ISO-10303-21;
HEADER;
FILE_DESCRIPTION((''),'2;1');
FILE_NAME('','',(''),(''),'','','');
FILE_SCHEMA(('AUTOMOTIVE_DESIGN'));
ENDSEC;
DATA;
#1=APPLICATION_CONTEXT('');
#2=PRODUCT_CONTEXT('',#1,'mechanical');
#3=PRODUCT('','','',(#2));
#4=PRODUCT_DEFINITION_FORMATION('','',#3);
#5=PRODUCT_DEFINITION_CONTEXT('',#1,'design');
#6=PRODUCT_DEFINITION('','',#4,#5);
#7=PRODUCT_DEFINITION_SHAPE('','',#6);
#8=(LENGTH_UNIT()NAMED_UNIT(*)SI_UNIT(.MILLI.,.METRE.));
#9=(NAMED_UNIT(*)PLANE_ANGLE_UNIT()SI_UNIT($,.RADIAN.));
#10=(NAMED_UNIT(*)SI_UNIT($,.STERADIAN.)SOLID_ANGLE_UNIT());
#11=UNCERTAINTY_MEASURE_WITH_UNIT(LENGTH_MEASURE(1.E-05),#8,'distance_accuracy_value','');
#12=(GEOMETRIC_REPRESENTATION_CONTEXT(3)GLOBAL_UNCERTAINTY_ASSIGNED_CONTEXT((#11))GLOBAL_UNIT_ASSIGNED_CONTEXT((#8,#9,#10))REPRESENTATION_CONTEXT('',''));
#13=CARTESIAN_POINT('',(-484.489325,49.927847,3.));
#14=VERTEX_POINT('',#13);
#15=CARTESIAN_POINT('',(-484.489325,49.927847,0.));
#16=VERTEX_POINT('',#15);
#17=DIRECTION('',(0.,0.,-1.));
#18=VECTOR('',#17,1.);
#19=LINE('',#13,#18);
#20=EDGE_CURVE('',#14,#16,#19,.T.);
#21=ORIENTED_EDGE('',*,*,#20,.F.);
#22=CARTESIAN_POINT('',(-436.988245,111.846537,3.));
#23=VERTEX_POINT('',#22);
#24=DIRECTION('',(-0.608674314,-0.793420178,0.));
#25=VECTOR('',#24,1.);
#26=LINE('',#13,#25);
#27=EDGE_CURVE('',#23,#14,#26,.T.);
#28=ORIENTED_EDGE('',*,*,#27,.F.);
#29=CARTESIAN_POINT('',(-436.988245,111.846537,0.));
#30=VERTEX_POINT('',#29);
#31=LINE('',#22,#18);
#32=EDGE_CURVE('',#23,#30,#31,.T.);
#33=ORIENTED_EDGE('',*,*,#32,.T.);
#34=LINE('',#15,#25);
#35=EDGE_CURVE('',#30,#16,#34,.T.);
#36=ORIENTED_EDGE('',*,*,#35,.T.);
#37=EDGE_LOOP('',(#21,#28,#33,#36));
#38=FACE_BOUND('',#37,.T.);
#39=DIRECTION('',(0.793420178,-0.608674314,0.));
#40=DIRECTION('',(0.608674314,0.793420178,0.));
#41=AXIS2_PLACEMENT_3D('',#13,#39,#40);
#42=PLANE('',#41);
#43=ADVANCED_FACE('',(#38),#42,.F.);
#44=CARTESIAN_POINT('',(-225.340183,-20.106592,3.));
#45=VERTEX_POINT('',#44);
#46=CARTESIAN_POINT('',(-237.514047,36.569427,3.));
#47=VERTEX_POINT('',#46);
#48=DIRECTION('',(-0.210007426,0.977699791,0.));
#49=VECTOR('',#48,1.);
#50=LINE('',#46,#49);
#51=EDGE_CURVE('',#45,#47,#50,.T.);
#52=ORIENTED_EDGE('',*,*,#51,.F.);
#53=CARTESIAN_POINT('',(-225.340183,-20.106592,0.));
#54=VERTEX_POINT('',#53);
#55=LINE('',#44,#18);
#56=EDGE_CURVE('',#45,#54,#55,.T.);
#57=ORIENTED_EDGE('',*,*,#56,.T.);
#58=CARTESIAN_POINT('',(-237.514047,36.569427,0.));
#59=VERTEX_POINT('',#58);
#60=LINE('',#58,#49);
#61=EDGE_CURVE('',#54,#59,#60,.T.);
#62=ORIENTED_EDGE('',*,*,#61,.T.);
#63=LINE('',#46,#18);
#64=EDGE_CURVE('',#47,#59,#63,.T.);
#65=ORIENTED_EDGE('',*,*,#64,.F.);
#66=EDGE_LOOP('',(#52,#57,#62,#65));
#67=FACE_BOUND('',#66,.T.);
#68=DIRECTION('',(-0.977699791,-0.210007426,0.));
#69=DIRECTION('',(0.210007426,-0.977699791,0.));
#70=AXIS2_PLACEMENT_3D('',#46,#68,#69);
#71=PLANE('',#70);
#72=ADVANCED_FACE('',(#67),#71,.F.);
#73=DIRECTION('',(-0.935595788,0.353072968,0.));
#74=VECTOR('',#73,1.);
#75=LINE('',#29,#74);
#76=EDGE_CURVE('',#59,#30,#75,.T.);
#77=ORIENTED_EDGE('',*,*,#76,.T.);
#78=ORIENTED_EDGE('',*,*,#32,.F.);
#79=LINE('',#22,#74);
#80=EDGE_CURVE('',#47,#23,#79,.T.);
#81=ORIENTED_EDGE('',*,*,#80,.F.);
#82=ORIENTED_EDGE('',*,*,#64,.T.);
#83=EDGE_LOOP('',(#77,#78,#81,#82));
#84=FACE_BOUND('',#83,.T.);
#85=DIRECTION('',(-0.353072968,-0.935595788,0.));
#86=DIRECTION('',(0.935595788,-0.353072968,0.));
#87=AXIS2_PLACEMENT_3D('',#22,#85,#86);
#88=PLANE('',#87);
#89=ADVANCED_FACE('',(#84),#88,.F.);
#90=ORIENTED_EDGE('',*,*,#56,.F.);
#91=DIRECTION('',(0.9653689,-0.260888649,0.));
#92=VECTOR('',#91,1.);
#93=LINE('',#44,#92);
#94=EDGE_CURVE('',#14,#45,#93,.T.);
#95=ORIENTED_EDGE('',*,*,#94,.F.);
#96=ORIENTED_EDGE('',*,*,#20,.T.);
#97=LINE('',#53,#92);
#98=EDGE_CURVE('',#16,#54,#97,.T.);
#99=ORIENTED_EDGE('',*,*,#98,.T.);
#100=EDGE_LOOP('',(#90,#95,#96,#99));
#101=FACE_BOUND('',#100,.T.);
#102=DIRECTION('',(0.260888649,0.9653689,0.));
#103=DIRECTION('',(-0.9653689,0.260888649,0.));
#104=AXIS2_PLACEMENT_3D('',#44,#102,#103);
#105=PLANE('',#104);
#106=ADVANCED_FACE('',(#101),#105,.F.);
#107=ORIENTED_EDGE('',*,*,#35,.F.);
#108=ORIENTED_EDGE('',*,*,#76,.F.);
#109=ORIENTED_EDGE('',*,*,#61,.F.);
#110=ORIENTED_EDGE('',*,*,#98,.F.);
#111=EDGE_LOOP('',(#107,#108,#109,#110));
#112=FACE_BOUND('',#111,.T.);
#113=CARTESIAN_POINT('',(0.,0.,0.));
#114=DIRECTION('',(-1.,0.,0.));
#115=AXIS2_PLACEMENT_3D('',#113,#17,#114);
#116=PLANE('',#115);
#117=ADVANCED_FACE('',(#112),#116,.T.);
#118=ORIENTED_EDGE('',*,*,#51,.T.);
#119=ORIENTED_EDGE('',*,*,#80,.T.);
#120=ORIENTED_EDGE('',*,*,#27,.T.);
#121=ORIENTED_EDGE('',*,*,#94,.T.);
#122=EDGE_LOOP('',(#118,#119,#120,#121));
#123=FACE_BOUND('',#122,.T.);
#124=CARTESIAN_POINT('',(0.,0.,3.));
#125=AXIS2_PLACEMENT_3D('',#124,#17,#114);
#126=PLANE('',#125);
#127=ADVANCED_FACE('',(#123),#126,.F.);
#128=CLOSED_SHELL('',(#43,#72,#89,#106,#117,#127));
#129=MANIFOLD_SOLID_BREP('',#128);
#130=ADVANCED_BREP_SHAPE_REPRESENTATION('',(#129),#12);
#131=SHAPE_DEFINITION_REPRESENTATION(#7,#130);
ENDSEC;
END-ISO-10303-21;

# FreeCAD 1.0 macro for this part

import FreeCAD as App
import Part
import Sketcher

V = App.Vector
Q = App.Units.Quantity

doc = App.newDocument("Part")
body = doc.addObject("PartDesign::Body", "Body")

# Sketch on XY plane
sketch1 = body.newObject("Sketcher::SketchObject", "Sketch")
sketch1.AttachmentSupport = (doc.getObject("XY_Plane"), [""])
sketch1.MapMode = "FlatFace"
sketch1.addGeometry(Part.LineSegment(V(-436.988245, 111.846537, 0), V(-484.489325, 49.927847, 0)), False)
sketch1.addGeometry(Part.LineSegment(V(-484.489325, 49.927847, 0), V(-225.340183, -20.106592, 0)), False)
sketch1.addGeometry(Part.LineSegment(V(-225.340183, -20.106592, 0), V(-237.514047, 36.569427, 0)), False)
sketch1.addGeometry(Part.LineSegment(V(-237.514047, 36.569427, 0), V(-436.988245, 111.846537, 0)), False)
sketch1.addConstraint(Sketcher.Constraint("Coincident", 0, 2, 1, 1))
sketch1.addConstraint(Sketcher.Constraint("Coincident", 1, 2, 2, 1))
sketch1.addConstraint(Sketcher.Constraint("Coincident", 2, 2, 3, 1))
sketch1.addConstraint(Sketcher.Constraint("Coincident", 3, 2, 0, 1))
sketch1.addConstraint(Sketcher.Constraint("Distance", 3, Q("213.205531 mm")))
sketch1.addConstraint(Sketcher.Constraint("DistanceY", 1, 2, 0, 2, Q("70.034439 mm")))
sketch1.addConstraint(Sketcher.Constraint("DistanceY", 1, 2, 2, 2, Q("56.676019 mm")))
sketch1.addConstraint(Sketcher.Constraint("DistanceX", 0, 2, 3, 2, Q("47.501081 mm")))
sketch1.addConstraint(Sketcher.Constraint("DistanceY", 0, 2, 3, 2, Q("61.91869 mm")))
sketch1.addConstraint(Sketcher.Constraint("DistanceX", 3, 2, 1, 2, Q("211.648062 mm")))
sketch1.addConstraint(Sketcher.Constraint("DistanceX", 0, 2, -1, 1, Q("484.489325 mm")))
sketch1.addConstraint(Sketcher.Constraint("DistanceY", -1, 1, 0, 2, Q("49.927847 mm")))
pad1 = body.newObject("PartDesign::Pad", "Pad")
pad1.Profile = sketch1
pad1.Length = 3

doc.recompute()
